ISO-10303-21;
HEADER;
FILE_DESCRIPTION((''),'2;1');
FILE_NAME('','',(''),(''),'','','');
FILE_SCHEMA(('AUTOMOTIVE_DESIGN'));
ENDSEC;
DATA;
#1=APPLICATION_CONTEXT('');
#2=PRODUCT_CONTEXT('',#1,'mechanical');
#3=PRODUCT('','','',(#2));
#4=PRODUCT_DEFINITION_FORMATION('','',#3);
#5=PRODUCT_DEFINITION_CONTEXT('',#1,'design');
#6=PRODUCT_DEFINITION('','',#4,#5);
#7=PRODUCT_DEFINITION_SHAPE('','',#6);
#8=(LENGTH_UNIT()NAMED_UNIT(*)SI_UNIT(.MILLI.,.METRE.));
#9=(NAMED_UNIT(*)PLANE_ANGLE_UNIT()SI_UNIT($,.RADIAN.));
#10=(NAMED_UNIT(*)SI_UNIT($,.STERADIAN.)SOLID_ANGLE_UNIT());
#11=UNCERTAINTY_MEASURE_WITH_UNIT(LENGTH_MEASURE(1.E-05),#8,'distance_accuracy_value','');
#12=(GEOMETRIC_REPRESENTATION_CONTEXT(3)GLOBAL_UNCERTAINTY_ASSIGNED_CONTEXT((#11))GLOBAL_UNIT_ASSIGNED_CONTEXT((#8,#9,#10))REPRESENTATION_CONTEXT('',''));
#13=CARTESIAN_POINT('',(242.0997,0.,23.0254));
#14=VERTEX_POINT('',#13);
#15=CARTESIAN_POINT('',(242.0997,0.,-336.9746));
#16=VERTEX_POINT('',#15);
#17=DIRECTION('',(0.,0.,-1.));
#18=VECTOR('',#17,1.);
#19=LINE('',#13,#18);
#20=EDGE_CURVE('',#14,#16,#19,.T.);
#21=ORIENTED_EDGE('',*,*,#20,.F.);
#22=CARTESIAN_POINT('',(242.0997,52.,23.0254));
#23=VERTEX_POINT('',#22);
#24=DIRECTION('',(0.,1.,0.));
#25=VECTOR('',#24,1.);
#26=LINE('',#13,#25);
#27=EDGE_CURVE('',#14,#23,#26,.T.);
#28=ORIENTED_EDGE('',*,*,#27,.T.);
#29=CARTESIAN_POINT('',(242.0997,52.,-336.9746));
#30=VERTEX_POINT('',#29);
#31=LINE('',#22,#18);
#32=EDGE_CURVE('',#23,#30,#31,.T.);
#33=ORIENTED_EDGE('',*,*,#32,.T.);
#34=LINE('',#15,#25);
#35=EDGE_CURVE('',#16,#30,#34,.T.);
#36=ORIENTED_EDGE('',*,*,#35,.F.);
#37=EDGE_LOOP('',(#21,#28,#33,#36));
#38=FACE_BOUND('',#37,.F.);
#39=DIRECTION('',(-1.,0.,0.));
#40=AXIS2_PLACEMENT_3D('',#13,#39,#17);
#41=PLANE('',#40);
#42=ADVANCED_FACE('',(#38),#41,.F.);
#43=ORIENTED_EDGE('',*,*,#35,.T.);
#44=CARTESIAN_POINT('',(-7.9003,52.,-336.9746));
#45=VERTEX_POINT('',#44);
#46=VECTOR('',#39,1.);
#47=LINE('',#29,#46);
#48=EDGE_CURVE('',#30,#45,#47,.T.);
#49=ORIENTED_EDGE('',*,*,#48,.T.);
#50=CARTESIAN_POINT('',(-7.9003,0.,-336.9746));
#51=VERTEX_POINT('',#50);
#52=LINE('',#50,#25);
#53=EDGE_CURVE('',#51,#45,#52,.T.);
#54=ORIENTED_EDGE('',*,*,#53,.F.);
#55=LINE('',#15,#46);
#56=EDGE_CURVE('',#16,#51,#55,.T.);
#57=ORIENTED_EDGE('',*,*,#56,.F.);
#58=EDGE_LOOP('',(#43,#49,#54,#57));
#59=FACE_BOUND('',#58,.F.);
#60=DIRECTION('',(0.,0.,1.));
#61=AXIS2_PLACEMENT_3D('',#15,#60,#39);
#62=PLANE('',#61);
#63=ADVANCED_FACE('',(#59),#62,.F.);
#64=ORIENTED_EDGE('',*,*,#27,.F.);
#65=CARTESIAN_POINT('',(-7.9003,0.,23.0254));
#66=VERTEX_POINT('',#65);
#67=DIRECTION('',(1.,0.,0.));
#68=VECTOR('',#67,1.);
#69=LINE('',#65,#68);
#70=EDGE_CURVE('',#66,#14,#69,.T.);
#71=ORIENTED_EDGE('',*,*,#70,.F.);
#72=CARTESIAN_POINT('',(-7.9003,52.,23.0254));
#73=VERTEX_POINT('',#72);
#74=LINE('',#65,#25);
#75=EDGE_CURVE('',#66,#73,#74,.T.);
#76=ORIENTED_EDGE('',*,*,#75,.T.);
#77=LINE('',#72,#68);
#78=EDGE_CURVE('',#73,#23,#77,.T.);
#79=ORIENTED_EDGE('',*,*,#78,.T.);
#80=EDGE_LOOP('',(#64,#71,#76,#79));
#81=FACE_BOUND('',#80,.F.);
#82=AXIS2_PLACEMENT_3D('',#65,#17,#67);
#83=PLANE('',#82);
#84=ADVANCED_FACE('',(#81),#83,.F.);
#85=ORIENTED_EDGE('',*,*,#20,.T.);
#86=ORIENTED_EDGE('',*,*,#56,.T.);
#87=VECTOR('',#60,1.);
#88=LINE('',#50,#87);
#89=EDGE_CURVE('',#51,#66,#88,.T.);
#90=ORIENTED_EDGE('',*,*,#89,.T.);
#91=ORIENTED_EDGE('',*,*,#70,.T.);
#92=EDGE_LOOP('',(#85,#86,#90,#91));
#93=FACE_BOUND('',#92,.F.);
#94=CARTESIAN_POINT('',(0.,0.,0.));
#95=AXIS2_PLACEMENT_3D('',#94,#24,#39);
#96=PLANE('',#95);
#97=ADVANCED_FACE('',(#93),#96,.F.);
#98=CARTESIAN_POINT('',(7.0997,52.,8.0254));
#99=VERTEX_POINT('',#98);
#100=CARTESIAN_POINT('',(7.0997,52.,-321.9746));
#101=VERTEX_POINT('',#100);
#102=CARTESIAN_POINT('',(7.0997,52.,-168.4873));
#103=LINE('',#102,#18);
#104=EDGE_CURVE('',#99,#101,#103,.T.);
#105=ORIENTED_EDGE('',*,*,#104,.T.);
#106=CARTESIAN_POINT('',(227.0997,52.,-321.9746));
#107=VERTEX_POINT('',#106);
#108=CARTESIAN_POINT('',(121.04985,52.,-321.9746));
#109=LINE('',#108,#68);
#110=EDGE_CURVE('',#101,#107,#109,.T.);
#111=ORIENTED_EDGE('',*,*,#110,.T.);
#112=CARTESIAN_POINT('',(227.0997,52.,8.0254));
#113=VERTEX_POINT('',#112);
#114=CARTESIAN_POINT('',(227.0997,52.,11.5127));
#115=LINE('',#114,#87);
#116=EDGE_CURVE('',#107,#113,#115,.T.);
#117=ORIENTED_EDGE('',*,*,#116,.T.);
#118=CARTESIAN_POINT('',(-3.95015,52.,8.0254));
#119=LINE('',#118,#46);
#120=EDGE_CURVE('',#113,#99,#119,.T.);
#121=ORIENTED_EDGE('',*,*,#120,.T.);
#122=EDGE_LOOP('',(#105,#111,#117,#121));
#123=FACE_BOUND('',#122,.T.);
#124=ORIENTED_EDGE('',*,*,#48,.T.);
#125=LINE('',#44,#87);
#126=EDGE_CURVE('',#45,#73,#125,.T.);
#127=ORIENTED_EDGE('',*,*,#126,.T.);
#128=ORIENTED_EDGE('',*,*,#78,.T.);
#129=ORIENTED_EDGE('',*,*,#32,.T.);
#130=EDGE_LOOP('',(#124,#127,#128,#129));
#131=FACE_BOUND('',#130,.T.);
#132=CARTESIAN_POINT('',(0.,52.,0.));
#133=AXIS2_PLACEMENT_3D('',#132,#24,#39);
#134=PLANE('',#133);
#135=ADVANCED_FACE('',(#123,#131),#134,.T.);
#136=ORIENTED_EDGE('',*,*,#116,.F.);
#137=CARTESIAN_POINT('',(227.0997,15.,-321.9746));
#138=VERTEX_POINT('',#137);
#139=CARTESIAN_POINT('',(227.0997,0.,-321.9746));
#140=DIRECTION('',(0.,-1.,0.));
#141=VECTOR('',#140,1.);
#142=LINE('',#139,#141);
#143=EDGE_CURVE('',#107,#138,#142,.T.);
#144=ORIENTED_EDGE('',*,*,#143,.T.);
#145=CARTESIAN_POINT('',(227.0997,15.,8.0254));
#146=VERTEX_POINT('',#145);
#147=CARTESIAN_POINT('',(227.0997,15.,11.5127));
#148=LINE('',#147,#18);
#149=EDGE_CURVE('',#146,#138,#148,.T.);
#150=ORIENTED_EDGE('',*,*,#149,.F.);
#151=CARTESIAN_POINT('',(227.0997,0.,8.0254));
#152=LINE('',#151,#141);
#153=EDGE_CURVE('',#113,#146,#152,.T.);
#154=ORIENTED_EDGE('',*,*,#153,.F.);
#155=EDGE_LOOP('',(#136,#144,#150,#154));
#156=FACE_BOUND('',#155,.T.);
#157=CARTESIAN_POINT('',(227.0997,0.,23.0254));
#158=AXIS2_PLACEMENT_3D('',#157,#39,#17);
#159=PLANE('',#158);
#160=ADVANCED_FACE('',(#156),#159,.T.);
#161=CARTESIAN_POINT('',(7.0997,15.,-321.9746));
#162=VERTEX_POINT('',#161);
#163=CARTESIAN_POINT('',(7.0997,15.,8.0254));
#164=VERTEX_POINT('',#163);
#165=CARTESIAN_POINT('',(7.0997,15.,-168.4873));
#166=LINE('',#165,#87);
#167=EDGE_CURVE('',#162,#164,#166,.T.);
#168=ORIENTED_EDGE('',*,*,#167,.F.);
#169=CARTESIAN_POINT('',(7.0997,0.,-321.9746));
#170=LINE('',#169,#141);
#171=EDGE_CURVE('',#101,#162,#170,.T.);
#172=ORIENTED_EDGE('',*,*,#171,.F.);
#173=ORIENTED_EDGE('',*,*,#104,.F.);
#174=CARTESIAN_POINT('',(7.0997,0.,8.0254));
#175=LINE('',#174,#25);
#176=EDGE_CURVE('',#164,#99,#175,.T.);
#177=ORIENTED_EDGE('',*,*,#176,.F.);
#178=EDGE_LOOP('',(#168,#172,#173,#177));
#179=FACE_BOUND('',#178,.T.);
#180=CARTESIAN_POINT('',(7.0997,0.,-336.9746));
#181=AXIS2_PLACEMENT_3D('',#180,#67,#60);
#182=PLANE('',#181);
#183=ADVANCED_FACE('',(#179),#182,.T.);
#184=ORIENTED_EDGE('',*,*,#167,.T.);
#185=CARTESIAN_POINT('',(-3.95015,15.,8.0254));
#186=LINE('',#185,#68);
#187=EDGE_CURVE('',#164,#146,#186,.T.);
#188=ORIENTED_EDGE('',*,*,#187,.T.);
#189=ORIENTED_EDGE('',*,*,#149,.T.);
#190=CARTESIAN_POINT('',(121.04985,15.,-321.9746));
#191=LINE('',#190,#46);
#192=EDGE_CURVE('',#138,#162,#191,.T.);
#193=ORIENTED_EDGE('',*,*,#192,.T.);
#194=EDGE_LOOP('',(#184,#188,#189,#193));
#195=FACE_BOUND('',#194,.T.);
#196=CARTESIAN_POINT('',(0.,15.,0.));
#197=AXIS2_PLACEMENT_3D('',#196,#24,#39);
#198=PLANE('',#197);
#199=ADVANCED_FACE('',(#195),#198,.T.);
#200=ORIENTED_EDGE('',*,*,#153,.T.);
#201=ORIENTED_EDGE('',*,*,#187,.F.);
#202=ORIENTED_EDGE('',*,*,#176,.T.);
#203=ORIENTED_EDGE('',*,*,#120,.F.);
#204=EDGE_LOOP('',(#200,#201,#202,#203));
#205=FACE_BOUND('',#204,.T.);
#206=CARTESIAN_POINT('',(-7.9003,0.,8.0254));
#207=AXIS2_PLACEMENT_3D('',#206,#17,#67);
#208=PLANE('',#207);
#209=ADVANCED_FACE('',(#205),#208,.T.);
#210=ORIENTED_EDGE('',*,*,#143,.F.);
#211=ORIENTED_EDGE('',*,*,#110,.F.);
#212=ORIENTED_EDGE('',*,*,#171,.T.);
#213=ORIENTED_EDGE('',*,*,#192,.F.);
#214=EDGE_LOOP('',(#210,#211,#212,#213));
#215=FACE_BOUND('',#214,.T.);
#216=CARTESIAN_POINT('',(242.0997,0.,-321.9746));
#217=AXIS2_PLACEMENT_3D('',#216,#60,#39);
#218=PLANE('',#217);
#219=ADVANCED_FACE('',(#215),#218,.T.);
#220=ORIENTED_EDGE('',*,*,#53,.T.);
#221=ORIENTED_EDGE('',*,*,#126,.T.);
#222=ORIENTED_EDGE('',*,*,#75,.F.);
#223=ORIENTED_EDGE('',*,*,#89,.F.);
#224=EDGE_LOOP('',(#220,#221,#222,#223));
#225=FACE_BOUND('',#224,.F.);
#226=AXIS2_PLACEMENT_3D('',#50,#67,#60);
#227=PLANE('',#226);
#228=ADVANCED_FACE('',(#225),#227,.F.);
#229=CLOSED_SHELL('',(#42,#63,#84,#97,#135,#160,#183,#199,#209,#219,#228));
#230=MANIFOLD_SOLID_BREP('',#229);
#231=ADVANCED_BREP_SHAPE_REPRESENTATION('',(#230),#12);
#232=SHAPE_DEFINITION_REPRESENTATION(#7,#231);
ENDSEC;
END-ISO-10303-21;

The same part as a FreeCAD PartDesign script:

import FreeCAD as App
import Part
import Sketcher

V = App.Vector
Q = App.Units.Quantity


def faces_at(feature, points):
    """Names of the faces that lie closest to the given points."""
    faces = feature.Shape.Faces
    near = lambda p: min(range(len(faces)), key=lambda i: faces[i].distToShape(Part.Vertex(*p))[0])
    return sorted({f"Face{near(p) + 1}" for p in points})

doc = App.newDocument("Part")
params = doc.addObject("Spreadsheet::Sheet", "Params")
for row, (alias, value) in enumerate([
    ("sketch1_width", "250 mm"),
    ("sketch1_height", "360 mm"),
    ("pad1_length", "52 mm"),
    ("thickness_wall", "15 mm"),
], start=1):
    params.set(f"A{row}", alias)
    params.set(f"B{row}", "=" + value)
    params.setAlias(f"B{row}", alias)

body = doc.addObject("PartDesign::Body", "Body")

# Sketch on XZ plane
sketch1 = doc.addObject("Sketcher::SketchObject", "Sketch")
body.addObject(sketch1)
sketch1.AttachmentSupport = (doc.XZ_Plane, [""])
sketch1.MapMode = "FlatFace"
sketch1.addGeometry([
    Part.LineSegment(V(-7.9003, -336.9746, 0), V(-7.9003, 23.0254, 0)),
    Part.LineSegment(V(-7.9003, 23.0254, 0), V(242.0997, 23.0254, 0)),
    Part.LineSegment(V(242.0997, 23.0254, 0), V(242.0997, -336.9746, 0)),
    Part.LineSegment(V(242.0997, -336.9746, 0), V(-7.9003, -336.9746, 0)),
], False)
sketch1.addConstraint([
    Sketcher.Constraint("Coincident", 0, 2, 1, 1),
    Sketcher.Constraint("Coincident", 1, 2, 2, 1),
    Sketcher.Constraint("Coincident", 2, 2, 3, 1),
    Sketcher.Constraint("Coincident", 3, 2, 0, 1),
    Sketcher.Constraint("Vertical", 0),
    Sketcher.Constraint("Horizontal", 1),
    Sketcher.Constraint("Vertical", 2),
    Sketcher.Constraint("Horizontal", 3),
    Sketcher.Constraint("DistanceX", 1, 1, 1, 2, Q("250 mm")),
    Sketcher.Constraint("DistanceY", 0, 1, 0, 2, Q("360 mm")),
    Sketcher.Constraint("DistanceX", 0, 2, -1, 1, Q("7.9003 mm")),
    Sketcher.Constraint("DistanceY", -1, 1, 0, 2, Q("23.0254 mm")),
])
sketch1.setExpression("Constraints[8]", "Params.sketch1_width")
sketch1.setExpression("Constraints[9]", "Params.sketch1_height")
pad1 = doc.addObject("PartDesign::Pad", "Pad")
body.addObject(pad1)
pad1.Profile = sketch1
pad1.setExpression("Length", "Params.pad1_length")
pad1.Reversed = True
doc.recompute()

thickness = doc.addObject("PartDesign::Thickness", "Thickness")
body.addObject(thickness)
thickness.Base = (pad1, faces_at(pad1, [(158.766, 52, -96.975)]))
thickness.setExpression("Value", "Params.thickness_wall")
thickness.Reversed = True
thickness.Join = "Intersection"

doc.recompute()
